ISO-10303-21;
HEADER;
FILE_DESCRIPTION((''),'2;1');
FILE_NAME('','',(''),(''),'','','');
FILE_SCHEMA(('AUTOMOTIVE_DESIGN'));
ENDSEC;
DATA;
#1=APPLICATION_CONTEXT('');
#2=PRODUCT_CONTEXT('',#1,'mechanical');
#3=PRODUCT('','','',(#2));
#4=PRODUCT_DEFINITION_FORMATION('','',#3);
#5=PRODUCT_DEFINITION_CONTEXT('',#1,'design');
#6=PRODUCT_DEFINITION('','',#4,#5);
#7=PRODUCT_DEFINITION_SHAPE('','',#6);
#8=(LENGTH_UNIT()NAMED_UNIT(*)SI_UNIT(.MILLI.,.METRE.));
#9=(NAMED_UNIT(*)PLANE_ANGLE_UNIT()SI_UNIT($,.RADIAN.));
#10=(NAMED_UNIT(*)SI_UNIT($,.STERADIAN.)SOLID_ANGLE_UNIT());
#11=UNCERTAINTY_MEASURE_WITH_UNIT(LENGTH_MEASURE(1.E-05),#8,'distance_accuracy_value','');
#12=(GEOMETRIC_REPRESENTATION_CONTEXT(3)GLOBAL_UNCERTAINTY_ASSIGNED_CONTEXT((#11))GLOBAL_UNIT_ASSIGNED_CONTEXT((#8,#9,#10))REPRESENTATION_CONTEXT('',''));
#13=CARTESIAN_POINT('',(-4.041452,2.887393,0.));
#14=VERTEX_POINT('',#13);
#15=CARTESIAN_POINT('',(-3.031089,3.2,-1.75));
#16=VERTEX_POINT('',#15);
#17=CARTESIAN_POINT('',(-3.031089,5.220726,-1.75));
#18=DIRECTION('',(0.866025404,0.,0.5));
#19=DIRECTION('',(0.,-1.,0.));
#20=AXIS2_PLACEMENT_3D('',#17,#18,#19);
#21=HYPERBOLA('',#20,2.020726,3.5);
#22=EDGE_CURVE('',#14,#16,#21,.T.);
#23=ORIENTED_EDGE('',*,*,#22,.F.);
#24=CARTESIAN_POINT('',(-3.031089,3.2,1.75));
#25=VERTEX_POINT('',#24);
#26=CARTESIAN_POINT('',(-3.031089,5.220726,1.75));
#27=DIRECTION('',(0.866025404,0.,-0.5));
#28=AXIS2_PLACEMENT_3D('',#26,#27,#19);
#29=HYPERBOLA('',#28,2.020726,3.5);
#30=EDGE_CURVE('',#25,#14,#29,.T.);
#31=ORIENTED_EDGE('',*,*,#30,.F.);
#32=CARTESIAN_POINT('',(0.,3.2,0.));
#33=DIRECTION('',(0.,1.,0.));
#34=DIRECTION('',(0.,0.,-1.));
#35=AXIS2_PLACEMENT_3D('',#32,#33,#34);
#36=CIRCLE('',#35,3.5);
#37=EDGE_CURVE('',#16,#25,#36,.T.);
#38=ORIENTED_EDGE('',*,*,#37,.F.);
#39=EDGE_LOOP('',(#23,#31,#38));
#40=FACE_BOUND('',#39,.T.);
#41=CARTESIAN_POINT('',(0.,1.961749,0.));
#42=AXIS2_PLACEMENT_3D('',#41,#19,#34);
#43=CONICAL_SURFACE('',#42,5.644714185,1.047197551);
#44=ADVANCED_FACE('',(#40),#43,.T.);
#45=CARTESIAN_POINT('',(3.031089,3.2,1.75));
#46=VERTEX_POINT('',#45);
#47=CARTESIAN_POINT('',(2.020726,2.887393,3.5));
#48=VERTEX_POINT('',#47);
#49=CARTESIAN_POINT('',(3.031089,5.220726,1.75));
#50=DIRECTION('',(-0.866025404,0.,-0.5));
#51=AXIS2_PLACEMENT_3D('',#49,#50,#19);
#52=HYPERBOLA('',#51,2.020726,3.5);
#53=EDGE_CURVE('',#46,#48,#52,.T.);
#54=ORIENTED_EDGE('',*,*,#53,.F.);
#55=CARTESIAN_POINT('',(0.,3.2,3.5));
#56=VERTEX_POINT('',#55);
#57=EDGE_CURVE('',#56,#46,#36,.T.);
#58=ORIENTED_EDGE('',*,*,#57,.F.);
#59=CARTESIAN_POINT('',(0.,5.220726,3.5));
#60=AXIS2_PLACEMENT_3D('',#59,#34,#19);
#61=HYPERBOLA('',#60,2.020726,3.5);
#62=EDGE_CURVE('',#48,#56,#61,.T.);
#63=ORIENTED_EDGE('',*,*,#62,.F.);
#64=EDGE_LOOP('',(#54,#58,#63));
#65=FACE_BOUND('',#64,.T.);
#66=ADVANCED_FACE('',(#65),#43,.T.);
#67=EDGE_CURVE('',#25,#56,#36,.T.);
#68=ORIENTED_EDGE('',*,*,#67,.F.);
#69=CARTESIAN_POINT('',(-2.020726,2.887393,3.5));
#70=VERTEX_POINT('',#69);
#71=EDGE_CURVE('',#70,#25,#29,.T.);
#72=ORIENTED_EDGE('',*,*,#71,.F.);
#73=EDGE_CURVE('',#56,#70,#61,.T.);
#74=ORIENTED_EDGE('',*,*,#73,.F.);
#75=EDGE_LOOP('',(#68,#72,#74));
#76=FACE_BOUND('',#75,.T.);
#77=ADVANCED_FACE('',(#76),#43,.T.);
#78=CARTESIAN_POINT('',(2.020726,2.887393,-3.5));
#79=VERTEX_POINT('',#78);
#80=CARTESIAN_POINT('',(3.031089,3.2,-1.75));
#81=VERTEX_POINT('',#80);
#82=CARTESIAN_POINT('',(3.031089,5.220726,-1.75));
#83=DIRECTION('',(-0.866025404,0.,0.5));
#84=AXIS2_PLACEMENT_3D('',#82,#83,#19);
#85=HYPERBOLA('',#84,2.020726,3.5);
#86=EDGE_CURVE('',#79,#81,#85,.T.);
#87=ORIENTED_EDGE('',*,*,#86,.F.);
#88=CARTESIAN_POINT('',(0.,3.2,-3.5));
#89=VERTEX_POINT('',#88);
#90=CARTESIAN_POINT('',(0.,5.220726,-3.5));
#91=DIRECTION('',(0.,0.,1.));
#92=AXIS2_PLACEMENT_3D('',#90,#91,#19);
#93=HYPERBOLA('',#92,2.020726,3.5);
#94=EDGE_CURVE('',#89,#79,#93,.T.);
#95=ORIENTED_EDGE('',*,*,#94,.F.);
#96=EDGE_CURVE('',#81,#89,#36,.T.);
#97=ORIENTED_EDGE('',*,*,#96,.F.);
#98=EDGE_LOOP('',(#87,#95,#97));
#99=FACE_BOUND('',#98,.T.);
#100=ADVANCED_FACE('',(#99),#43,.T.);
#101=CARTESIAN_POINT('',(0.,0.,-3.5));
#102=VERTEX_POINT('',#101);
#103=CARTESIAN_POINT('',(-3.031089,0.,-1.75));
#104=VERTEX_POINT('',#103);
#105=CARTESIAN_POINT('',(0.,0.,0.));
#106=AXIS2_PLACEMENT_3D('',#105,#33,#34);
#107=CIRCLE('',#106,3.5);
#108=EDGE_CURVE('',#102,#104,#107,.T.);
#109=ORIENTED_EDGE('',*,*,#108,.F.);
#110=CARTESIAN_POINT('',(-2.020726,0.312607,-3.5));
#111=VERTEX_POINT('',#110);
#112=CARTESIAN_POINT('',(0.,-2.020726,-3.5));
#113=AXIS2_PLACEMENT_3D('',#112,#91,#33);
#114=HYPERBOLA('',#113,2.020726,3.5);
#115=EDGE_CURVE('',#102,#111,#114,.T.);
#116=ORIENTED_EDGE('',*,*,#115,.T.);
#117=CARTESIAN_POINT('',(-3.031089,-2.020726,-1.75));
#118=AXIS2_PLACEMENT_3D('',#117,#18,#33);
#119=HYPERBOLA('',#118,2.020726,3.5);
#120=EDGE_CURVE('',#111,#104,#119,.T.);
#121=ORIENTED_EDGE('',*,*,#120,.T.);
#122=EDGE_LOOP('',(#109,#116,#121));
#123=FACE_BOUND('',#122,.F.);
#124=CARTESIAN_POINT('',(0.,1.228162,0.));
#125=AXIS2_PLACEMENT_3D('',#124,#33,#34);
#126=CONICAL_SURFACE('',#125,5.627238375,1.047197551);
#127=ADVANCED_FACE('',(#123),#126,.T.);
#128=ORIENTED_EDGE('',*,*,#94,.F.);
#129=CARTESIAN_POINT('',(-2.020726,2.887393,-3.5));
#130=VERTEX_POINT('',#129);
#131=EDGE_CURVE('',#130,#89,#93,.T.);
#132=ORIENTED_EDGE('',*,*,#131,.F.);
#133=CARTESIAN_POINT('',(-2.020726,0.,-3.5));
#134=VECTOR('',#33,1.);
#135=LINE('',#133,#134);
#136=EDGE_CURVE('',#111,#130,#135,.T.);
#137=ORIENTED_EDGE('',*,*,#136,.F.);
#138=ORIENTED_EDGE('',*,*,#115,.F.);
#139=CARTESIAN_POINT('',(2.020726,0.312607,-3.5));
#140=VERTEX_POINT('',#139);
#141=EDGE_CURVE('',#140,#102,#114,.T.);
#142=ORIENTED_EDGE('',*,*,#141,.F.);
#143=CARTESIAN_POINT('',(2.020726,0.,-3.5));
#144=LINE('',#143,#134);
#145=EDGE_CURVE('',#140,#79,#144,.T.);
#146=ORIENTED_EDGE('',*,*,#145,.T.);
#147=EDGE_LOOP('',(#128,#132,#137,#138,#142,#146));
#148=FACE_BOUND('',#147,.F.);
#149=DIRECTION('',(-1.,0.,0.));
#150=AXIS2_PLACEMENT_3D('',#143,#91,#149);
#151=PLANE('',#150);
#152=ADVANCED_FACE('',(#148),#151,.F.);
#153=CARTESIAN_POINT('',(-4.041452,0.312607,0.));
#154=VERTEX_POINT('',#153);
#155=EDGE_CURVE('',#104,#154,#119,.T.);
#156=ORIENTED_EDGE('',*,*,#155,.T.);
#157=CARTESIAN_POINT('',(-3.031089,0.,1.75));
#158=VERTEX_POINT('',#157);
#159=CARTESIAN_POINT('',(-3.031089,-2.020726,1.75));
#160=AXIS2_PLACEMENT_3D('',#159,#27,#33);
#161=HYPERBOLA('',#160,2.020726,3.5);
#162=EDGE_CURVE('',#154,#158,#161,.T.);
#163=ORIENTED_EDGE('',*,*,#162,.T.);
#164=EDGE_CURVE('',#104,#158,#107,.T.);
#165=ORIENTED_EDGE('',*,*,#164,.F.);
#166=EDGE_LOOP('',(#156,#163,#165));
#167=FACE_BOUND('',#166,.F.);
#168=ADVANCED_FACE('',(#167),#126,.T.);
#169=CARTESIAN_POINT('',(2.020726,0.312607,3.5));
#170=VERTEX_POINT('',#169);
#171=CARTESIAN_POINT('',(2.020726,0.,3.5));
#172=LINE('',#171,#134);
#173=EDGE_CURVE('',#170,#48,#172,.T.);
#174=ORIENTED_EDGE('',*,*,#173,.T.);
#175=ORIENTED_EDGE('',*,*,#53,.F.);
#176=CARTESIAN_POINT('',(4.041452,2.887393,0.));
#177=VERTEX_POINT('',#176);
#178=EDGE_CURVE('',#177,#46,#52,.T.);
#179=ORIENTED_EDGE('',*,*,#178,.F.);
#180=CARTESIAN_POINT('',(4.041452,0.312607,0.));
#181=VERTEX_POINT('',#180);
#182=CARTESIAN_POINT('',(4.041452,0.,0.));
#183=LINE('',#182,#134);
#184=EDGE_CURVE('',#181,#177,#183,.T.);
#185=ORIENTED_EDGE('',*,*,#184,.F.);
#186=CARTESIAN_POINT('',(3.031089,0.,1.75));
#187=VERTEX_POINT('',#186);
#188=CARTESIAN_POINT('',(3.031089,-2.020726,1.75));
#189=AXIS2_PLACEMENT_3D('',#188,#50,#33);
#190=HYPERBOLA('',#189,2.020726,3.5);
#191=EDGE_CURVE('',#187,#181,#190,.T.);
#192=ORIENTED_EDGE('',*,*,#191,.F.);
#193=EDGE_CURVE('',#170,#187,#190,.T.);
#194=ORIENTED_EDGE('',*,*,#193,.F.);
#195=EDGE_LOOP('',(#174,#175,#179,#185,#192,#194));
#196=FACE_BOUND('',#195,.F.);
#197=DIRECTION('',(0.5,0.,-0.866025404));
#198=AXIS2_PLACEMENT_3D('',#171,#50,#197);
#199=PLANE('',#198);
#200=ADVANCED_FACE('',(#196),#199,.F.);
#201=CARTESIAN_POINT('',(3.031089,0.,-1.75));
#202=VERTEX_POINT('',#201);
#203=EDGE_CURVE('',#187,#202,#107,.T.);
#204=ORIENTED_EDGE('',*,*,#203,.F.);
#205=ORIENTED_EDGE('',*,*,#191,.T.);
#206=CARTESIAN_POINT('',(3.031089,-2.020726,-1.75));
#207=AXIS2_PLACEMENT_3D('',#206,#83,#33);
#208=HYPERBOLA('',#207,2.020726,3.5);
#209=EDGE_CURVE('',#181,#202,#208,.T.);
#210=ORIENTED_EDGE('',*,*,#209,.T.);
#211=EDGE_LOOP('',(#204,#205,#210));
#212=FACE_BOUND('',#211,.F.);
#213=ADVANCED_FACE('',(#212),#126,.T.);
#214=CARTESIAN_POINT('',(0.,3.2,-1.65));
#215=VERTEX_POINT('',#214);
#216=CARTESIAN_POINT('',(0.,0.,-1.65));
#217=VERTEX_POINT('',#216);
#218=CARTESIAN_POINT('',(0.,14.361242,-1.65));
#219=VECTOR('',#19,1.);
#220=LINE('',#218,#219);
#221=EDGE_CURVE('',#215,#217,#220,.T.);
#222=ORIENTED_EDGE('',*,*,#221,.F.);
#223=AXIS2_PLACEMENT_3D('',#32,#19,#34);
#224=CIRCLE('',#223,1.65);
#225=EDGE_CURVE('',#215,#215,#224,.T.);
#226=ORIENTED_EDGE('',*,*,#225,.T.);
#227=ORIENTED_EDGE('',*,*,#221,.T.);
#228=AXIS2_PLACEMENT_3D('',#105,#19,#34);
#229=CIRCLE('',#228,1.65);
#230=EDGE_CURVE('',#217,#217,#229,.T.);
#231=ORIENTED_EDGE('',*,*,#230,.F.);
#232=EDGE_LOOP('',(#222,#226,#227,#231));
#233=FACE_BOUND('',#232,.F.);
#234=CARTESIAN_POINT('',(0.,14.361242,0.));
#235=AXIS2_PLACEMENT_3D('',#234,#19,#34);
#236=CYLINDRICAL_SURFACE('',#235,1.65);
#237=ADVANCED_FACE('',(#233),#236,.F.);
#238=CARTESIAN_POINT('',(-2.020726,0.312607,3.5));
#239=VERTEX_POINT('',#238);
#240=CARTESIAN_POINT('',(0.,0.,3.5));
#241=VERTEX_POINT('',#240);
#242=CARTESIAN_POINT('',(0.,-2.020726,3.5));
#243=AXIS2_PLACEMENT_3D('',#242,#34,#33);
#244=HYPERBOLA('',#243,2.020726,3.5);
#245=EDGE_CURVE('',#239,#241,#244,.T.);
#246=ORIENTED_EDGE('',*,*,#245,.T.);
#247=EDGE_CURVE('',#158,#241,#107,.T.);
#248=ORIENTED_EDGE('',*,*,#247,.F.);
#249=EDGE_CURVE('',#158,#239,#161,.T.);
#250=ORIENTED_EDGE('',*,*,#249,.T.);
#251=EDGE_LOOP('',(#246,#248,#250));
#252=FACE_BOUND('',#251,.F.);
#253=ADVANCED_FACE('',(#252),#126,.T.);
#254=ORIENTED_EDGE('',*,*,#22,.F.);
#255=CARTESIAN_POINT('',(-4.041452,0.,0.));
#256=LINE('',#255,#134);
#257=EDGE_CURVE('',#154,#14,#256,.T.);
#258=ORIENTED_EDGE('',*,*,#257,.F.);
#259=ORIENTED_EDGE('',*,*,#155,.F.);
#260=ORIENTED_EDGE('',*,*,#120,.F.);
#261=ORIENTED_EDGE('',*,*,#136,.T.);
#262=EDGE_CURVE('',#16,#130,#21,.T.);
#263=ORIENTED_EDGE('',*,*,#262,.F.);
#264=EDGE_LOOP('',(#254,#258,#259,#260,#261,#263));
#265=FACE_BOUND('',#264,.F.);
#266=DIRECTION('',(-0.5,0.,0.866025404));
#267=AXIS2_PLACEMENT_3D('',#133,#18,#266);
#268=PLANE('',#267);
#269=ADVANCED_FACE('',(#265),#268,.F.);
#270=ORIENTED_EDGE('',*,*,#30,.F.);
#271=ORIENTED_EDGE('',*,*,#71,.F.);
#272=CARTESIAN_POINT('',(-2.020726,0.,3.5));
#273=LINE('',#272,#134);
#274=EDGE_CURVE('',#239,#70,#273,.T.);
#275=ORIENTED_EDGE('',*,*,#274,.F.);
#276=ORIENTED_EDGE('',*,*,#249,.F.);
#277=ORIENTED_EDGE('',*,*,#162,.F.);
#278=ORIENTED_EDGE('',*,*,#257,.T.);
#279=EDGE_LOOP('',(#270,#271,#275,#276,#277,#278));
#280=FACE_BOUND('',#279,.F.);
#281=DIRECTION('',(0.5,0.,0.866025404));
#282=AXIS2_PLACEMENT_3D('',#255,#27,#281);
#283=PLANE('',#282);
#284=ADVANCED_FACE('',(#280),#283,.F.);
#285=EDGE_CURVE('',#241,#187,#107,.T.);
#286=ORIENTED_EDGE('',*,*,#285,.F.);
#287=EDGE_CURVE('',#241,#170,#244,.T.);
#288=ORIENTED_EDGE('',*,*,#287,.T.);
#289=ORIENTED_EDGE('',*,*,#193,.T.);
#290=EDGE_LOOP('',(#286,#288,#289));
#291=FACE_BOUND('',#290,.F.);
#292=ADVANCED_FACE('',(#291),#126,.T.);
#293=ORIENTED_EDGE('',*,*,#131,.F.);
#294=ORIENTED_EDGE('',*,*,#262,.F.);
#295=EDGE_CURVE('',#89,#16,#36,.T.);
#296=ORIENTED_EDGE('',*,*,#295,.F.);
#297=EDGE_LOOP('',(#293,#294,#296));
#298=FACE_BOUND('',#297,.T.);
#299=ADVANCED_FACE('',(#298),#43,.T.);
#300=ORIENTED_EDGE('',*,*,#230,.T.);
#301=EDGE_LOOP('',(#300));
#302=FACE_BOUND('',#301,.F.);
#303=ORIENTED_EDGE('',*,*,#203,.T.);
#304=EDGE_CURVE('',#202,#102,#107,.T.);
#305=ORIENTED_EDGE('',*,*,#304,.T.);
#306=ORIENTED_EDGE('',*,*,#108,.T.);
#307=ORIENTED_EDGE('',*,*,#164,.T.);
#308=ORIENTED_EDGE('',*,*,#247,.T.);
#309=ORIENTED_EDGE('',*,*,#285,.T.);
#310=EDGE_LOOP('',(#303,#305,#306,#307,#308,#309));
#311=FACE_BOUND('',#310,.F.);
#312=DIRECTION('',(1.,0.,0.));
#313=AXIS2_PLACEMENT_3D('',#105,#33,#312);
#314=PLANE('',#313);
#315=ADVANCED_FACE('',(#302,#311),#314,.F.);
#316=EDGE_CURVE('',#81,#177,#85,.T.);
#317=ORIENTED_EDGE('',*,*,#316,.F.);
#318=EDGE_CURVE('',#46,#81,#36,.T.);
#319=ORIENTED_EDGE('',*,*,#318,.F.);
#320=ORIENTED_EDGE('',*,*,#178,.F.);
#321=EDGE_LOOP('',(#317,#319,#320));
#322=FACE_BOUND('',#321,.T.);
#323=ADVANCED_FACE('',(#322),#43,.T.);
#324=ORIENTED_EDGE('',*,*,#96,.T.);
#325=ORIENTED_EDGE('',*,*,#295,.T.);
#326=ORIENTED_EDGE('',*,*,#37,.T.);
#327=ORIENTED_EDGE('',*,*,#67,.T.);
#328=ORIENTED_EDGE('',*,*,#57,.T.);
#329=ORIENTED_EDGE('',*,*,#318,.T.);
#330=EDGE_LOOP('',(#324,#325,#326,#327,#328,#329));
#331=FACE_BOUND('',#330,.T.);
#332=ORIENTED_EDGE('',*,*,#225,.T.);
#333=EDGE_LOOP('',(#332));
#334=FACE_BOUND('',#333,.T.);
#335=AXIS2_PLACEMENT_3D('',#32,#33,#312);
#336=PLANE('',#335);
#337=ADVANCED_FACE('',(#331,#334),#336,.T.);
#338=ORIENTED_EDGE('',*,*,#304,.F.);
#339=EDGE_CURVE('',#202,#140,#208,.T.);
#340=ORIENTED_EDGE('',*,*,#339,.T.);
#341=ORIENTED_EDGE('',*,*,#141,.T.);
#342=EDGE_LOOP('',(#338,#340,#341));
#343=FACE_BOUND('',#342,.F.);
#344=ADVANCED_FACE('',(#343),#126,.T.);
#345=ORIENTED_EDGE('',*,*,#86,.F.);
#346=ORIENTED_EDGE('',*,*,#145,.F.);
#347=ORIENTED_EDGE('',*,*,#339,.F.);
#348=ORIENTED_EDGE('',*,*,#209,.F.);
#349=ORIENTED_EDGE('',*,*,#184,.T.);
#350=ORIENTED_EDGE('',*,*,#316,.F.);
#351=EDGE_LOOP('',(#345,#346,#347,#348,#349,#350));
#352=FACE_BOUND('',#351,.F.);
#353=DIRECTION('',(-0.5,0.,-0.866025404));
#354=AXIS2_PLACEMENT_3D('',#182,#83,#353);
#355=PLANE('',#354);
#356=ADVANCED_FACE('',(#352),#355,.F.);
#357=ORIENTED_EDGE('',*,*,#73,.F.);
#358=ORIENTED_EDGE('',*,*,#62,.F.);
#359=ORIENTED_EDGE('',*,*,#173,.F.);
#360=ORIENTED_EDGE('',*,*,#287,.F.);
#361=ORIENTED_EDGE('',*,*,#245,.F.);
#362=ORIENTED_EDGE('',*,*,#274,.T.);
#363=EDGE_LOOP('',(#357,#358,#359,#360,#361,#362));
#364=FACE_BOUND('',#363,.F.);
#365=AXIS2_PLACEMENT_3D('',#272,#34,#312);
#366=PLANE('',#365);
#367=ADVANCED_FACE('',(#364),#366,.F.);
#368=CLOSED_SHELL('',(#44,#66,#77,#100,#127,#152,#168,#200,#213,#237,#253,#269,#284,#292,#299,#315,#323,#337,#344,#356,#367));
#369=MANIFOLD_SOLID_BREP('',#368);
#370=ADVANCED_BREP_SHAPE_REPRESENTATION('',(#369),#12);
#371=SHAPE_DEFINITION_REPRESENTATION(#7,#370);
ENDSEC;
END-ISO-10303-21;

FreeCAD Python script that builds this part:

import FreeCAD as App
import Part
import Sketcher

V = App.Vector
Q = App.Units.Quantity

doc = App.newDocument("Part")
body = doc.addObject("PartDesign::Body", "Body")

# Sketch on XZ plane
sketch1 = body.newObject("Sketcher::SketchObject", "Sketch")
sketch1.AttachmentSupport = (doc.getObject("XZ_Plane"), [""])
sketch1.MapMode = "FlatFace"
sketch1.addGeometry([
    Part.LineSegment(V(-2, 3.5, 0), V(2, 3.5, 0)),  # 0
    Part.LineSegment(V(2, 3.5, 0), V(4, 0, 0)),  # 1
    Part.LineSegment(V(4, 0, 0), V(2, -3.5, 0)),  # 2
    Part.LineSegment(V(2, -3.5, 0), V(-2, -3.5, 0)),  # 3
    Part.LineSegment(V(-2, -3.5, 0), V(-4, 0, 0)),  # 4
    Part.LineSegment(V(-4, 0, 0), V(-2, 3.5, 0)),  # 5
], False)
sketch1.addConstraint([
    Sketcher.Constraint("Coincident", 0, 2, 1, 1),
    Sketcher.Constraint("Coincident", 1, 2, 2, 1),
    Sketcher.Constraint("Coincident", 2, 2, 3, 1),
    Sketcher.Constraint("Coincident", 3, 2, 4, 1),
    Sketcher.Constraint("Coincident", 4, 2, 5, 1),
    Sketcher.Constraint("Coincident", 5, 2, 0, 1),
    Sketcher.Constraint("Horizontal", 0),
    Sketcher.Constraint("Horizontal", 3),
    Sketcher.Constraint("Symmetric", 0, 2, 3, 2, -1, 1),
    Sketcher.Constraint("Symmetric", 1, 2, 4, 2, -1, 1),
    Sketcher.Constraint("PointOnObject", 1, 2, -1),
    Sketcher.Constraint("Parallel", 2, 5),
    Sketcher.Constraint("Vertical", 0, 2, 2, 2),
    Sketcher.Constraint("Angle", 1, Q("-60 deg")),
    Sketcher.Constraint("DistanceY", 2, 2, 0, 2, 7.0),
    Sketcher.Constraint("DistanceX", 0, 1, 0, 2, 4.041452),
])
pad1 = body.newObject("PartDesign::Pad", "Pad")
pad1.Profile = sketch1
pad1.Length = 3.2
pad1.Reversed = True

# Sketch on YZ plane
sketch2 = body.newObject("Sketcher::SketchObject", "Sketch001")
sketch2.AttachmentSupport = (doc.getObject("YZ_Plane"), [""])
sketch2.MapMode = "FlatFace"
sketch2.addGeometry([
    Part.LineSegment(V(1.2, -5.6, 0), V(0, -3.5, 0)),  # 0
    Part.LineSegment(V(0, -3.5, 0), V(0, -5.6, 0)),  # 1
    Part.LineSegment(V(0, -5.6, 0), V(1.2, -5.6, 0)),  # 2
    Part.LineSegment(V(3.2, -5.6, 0), V(3.2, -3.5, 0)),  # 3
    Part.LineSegment(V(3.2, -3.5, 0), V(2, -5.6, 0)),  # 4
    Part.LineSegment(V(2, -5.6, 0), V(3.2, -5.6, 0)),  # 5
], False)
sketch2.addConstraint([
    Sketcher.Constraint("Coincident", 0, 2, 1, 1),
    Sketcher.Constraint("Coincident", 1, 2, 2, 1),
    Sketcher.Constraint("Coincident", 2, 2, 0, 1),
    Sketcher.Constraint("Coincident", 3, 2, 4, 1),
    Sketcher.Constraint("Coincident", 4, 2, 5, 1),
    Sketcher.Constraint("Coincident", 5, 2, 3, 1),
    Sketcher.Constraint("Vertical", 1),
    Sketcher.Constraint("Horizontal", 2),
    Sketcher.Constraint("Vertical", 3),
    Sketcher.Constraint("Horizontal", 5),
    Sketcher.Constraint("PointOnObject", 0, 2, -2),
    Sketcher.Constraint("Horizontal", 0, 2, 3, 2),
    Sketcher.Constraint("Angle", 0, Q("120 deg")),
    Sketcher.Constraint("Angle", 4, Q("-120 deg")),
    Sketcher.Constraint("DistanceY", 0, 2, -1, 1, 3.5),
    Sketcher.Constraint("DistanceX", -1, 1, 3, 2, 3.2),
    Sketcher.Constraint("DistanceX", 2, 1, 2, 2, 1.228162),
    Sketcher.Constraint("DistanceX", 5, 1, 5, 2, 1.238251),
])
groove = body.newObject("PartDesign::Groove", "Groove")
groove.Profile = sketch2
groove.ReferenceAxis = (sketch2, ["H_Axis"])
groove.Angle = 360

# Sketch on XZ plane
sketch3 = body.newObject("Sketcher::SketchObject", "Sketch002")
sketch3.AttachmentSupport = (doc.getObject("XZ_Plane"), [""])
sketch3.MapMode = "FlatFace"
sketch3.AttachmentOffset = App.Placement(V(0, 0, -3.2), App.Rotation())
sketch3.addGeometry(Part.Circle(V(0, 0, 0), V(0, 0, 1), 1.6), False)
sketch3.addConstraint([
    Sketcher.Constraint("Coincident", 0, 3, -1, 1),
    Sketcher.Constraint("Diameter", 0, 3.3),
])
doc.recompute()
hole = body.newObject("PartDesign::Hole", "Hole")
hole.Profile = sketch3
hole.ThreadType = "None"
hole.Diameter = 3.3
hole.DepthType = "ThroughAll"
hole.Reversed = True

doc.recompute()
